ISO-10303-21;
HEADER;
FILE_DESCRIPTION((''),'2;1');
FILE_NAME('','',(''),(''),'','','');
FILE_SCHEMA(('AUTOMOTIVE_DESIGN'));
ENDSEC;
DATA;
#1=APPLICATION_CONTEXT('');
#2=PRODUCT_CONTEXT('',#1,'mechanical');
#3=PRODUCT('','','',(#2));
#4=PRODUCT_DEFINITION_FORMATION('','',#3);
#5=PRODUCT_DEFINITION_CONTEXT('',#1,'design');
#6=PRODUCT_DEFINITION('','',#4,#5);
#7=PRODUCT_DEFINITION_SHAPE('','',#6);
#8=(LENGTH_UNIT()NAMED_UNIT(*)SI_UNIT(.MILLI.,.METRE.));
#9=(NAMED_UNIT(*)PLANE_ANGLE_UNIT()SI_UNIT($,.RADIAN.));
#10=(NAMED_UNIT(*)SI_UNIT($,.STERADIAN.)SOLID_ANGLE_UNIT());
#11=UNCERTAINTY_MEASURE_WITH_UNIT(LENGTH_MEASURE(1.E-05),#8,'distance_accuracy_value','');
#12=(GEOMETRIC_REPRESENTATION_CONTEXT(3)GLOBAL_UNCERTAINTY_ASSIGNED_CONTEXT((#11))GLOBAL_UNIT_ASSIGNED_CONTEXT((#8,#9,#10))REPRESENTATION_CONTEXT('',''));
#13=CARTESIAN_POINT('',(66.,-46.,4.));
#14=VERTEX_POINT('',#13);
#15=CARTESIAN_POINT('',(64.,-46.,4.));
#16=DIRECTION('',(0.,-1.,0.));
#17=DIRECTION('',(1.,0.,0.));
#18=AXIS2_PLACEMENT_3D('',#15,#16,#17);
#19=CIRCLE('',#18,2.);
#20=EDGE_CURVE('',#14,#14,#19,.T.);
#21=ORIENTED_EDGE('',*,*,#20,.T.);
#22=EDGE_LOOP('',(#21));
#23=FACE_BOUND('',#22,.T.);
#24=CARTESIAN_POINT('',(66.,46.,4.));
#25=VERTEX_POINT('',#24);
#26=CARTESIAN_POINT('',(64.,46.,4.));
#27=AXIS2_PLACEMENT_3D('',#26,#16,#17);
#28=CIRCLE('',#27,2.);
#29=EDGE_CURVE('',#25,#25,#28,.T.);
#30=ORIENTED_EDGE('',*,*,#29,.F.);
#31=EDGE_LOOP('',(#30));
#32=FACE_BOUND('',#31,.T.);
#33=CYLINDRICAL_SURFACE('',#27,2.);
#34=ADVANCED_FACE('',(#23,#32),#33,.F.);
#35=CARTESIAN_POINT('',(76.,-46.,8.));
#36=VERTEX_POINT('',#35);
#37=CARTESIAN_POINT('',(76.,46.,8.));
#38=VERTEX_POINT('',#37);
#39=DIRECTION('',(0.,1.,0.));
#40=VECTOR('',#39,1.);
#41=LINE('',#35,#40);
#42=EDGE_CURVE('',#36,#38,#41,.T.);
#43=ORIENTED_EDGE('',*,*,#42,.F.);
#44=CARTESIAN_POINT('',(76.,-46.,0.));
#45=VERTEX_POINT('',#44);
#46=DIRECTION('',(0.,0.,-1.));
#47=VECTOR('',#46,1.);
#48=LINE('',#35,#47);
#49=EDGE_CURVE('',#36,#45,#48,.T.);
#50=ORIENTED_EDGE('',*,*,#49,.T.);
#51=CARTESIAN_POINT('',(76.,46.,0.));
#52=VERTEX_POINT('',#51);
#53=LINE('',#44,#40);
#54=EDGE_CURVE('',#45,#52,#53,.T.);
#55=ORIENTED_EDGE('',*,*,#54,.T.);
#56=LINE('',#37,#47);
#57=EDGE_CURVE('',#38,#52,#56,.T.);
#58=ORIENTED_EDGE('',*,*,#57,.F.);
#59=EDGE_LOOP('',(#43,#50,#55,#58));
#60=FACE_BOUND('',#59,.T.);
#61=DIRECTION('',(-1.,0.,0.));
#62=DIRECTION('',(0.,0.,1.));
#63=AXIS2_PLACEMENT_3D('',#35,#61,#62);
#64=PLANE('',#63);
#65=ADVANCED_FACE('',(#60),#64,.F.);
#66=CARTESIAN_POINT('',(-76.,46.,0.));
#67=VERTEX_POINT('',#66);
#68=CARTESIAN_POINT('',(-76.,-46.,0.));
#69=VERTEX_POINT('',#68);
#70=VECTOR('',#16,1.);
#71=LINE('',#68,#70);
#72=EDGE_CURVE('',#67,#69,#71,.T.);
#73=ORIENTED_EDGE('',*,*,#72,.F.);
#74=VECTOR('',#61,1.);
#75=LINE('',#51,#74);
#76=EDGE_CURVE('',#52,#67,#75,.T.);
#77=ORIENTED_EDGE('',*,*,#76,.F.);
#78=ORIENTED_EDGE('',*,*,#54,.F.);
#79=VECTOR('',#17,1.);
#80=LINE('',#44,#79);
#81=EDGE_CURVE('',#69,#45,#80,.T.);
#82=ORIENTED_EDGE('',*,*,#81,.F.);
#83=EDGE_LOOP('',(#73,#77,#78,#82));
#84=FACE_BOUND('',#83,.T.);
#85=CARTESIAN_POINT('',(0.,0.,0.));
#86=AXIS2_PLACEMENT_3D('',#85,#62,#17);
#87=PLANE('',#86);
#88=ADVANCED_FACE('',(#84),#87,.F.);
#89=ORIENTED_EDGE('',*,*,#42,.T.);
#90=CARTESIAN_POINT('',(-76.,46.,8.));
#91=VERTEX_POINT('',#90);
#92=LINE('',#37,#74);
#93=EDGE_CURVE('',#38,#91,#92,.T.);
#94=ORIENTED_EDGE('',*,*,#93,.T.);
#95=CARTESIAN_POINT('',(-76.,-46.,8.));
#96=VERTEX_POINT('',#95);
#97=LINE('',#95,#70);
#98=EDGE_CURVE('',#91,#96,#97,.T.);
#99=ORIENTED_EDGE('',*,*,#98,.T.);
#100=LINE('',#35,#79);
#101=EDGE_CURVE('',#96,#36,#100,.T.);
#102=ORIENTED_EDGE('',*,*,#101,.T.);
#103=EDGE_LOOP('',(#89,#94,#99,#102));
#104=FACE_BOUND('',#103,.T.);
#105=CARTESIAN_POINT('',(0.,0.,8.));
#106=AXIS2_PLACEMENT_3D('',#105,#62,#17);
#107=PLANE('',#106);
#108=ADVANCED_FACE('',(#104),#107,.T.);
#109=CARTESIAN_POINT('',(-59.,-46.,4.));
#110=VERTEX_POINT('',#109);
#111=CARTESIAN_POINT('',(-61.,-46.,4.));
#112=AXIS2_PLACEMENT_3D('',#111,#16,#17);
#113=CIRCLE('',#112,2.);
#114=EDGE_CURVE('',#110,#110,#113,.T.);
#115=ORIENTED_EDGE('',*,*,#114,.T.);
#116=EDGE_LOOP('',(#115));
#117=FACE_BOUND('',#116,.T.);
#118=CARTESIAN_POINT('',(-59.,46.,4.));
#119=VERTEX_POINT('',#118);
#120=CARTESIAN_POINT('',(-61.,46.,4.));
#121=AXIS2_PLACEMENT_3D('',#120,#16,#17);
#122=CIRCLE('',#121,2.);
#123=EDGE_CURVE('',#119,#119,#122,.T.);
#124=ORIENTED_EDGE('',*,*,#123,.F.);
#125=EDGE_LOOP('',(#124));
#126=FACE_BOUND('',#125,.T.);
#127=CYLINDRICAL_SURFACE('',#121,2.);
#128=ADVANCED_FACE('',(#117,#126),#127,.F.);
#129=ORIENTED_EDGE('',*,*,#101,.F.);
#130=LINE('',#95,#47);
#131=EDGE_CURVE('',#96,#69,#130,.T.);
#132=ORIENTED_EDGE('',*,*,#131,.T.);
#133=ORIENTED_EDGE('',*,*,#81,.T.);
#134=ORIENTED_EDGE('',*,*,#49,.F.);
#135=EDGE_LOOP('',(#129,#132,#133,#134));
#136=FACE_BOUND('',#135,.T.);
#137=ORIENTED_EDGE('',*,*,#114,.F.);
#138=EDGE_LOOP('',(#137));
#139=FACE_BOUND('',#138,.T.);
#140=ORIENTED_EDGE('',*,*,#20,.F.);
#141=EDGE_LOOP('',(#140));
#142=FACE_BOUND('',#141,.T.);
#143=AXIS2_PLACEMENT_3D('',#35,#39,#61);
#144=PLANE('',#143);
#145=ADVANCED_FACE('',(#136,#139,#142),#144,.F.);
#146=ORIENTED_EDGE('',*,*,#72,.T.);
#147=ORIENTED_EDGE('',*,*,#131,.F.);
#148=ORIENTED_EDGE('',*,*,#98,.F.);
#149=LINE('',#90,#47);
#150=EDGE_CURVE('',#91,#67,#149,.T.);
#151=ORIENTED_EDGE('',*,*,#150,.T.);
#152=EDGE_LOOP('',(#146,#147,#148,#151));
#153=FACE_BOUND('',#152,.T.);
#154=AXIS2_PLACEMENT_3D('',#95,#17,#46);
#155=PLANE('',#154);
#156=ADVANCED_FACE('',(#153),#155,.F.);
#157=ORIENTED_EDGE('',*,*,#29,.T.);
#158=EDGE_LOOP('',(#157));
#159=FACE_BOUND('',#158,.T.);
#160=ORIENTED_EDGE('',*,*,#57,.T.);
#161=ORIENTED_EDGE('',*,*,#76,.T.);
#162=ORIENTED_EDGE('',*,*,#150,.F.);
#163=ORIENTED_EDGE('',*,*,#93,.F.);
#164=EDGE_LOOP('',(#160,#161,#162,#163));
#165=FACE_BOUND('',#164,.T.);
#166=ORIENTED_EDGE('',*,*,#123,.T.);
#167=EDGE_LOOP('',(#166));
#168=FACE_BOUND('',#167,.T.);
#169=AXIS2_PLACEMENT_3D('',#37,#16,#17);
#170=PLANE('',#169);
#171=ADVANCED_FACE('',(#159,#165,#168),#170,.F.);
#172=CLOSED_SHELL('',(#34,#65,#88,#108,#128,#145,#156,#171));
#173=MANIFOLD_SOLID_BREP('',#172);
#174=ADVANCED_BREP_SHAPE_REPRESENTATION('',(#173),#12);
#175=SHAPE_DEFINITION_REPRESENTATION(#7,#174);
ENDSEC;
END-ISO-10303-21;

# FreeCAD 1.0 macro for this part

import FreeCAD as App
import Part
import Sketcher

V = App.Vector

doc = App.newDocument("Part")
params = doc.addObject("Spreadsheet::Sheet", "Params")
for row, (alias, value) in enumerate([
    ("sketch1_width", "152 mm"),
    ("sketch1_height", "92 mm"),
    ("pad1_length", "8 mm"),
    ("sketch2_diameter", "4 mm"),
], start=1):
    params.set(f"A{row}", alias)
    params.set(f"B{row}", "=" + value)
    params.setAlias(f"B{row}", alias)

body = doc.addObject("PartDesign::Body", "Body")

# Sketch on XY plane
sketch1 = body.newObject("Sketcher::SketchObject", "Sketch")
sketch1.AttachmentSupport = (doc.getObject("XY_Plane"), [""])
sketch1.MapMode = "FlatFace"
sketch1.addGeometry(Part.LineSegment(V(-76, 46, 0), V(-76, -46, 0)), False)
sketch1.addGeometry(Part.LineSegment(V(-76, -46, 0), V(76, -46, 0)), False)
sketch1.addGeometry(Part.LineSegment(V(76, -46, 0), V(76, 46, 0)), False)
sketch1.addGeometry(Part.LineSegment(V(76, 46, 0), V(-76, 46, 0)), False)
sketch1.addConstraint(Sketcher.Constraint("Coincident", 0, 2, 1, 1))
sketch1.addConstraint(Sketcher.Constraint("Coincident", 1, 2, 2, 1))
sketch1.addConstraint(Sketcher.Constraint("Coincident", 2, 2, 3, 1))
sketch1.addConstraint(Sketcher.Constraint("Coincident", 3, 2, 0, 1))
sketch1.addConstraint(Sketcher.Constraint("Vertical", 0))
sketch1.addConstraint(Sketcher.Constraint("Horizontal", 1))
sketch1.addConstraint(Sketcher.Constraint("Vertical", 2))
sketch1.addConstraint(Sketcher.Constraint("Horizontal", 3))
sketch1.addConstraint(Sketcher.Constraint("Symmetric", 0, 2, 2, 2, -1, 1))
sketch1.addConstraint(Sketcher.Constraint("DistanceX", 1, 1, 1, 2, 152.0))
sketch1.addConstraint(Sketcher.Constraint("DistanceY", 0, 2, 0, 1, 92.0))
sketch1.setExpression("Constraints[9]", "Params.sketch1_width")
sketch1.setExpression("Constraints[10]", "Params.sketch1_height")
pad1 = body.newObject("PartDesign::Pad", "Pad")
pad1.Profile = sketch1
pad1.setExpression("Length", "Params.pad1_length")

# Sketch on XZ plane
sketch2 = body.newObject("Sketcher::SketchObject", "Sketch001")
sketch2.AttachmentSupport = (doc.getObject("XZ_Plane"), [""])
sketch2.MapMode = "FlatFace"
sketch2.AttachmentOffset = App.Placement(V(0, 0, 46), App.Rotation())
sketch2.addGeometry(Part.Circle(V(64, 4, 0), V(0, 0, 1), 2), False)
sketch2.addGeometry(Part.Circle(V(-61, 4, 0), V(0, 0, 1), 2), False)
sketch2.addConstraint(Sketcher.Constraint("Equal", 0, 1))
sketch2.addConstraint(Sketcher.Constraint("Horizontal", 0, 3, 1, 3))
sketch2.addConstraint(Sketcher.Constraint("Diameter", 0, 4.0))
sketch2.addConstraint(Sketcher.Constraint("DistanceX", -1, 1, 0, 3, 64.0))
sketch2.addConstraint(Sketcher.Constraint("DistanceY", -1, 1, 0, 3, 4.0))
sketch2.addConstraint(Sketcher.Constraint("DistanceX", 1, 3, -1, 1, 61.0))
sketch2.setExpression("Constraints[2]", "Params.sketch2_diameter")
pocket1 = body.newObject("PartDesign::Pocket", "Pocket")
pocket1.Profile = sketch2
pocket1.Type = "ThroughAll"

doc.recompute()
